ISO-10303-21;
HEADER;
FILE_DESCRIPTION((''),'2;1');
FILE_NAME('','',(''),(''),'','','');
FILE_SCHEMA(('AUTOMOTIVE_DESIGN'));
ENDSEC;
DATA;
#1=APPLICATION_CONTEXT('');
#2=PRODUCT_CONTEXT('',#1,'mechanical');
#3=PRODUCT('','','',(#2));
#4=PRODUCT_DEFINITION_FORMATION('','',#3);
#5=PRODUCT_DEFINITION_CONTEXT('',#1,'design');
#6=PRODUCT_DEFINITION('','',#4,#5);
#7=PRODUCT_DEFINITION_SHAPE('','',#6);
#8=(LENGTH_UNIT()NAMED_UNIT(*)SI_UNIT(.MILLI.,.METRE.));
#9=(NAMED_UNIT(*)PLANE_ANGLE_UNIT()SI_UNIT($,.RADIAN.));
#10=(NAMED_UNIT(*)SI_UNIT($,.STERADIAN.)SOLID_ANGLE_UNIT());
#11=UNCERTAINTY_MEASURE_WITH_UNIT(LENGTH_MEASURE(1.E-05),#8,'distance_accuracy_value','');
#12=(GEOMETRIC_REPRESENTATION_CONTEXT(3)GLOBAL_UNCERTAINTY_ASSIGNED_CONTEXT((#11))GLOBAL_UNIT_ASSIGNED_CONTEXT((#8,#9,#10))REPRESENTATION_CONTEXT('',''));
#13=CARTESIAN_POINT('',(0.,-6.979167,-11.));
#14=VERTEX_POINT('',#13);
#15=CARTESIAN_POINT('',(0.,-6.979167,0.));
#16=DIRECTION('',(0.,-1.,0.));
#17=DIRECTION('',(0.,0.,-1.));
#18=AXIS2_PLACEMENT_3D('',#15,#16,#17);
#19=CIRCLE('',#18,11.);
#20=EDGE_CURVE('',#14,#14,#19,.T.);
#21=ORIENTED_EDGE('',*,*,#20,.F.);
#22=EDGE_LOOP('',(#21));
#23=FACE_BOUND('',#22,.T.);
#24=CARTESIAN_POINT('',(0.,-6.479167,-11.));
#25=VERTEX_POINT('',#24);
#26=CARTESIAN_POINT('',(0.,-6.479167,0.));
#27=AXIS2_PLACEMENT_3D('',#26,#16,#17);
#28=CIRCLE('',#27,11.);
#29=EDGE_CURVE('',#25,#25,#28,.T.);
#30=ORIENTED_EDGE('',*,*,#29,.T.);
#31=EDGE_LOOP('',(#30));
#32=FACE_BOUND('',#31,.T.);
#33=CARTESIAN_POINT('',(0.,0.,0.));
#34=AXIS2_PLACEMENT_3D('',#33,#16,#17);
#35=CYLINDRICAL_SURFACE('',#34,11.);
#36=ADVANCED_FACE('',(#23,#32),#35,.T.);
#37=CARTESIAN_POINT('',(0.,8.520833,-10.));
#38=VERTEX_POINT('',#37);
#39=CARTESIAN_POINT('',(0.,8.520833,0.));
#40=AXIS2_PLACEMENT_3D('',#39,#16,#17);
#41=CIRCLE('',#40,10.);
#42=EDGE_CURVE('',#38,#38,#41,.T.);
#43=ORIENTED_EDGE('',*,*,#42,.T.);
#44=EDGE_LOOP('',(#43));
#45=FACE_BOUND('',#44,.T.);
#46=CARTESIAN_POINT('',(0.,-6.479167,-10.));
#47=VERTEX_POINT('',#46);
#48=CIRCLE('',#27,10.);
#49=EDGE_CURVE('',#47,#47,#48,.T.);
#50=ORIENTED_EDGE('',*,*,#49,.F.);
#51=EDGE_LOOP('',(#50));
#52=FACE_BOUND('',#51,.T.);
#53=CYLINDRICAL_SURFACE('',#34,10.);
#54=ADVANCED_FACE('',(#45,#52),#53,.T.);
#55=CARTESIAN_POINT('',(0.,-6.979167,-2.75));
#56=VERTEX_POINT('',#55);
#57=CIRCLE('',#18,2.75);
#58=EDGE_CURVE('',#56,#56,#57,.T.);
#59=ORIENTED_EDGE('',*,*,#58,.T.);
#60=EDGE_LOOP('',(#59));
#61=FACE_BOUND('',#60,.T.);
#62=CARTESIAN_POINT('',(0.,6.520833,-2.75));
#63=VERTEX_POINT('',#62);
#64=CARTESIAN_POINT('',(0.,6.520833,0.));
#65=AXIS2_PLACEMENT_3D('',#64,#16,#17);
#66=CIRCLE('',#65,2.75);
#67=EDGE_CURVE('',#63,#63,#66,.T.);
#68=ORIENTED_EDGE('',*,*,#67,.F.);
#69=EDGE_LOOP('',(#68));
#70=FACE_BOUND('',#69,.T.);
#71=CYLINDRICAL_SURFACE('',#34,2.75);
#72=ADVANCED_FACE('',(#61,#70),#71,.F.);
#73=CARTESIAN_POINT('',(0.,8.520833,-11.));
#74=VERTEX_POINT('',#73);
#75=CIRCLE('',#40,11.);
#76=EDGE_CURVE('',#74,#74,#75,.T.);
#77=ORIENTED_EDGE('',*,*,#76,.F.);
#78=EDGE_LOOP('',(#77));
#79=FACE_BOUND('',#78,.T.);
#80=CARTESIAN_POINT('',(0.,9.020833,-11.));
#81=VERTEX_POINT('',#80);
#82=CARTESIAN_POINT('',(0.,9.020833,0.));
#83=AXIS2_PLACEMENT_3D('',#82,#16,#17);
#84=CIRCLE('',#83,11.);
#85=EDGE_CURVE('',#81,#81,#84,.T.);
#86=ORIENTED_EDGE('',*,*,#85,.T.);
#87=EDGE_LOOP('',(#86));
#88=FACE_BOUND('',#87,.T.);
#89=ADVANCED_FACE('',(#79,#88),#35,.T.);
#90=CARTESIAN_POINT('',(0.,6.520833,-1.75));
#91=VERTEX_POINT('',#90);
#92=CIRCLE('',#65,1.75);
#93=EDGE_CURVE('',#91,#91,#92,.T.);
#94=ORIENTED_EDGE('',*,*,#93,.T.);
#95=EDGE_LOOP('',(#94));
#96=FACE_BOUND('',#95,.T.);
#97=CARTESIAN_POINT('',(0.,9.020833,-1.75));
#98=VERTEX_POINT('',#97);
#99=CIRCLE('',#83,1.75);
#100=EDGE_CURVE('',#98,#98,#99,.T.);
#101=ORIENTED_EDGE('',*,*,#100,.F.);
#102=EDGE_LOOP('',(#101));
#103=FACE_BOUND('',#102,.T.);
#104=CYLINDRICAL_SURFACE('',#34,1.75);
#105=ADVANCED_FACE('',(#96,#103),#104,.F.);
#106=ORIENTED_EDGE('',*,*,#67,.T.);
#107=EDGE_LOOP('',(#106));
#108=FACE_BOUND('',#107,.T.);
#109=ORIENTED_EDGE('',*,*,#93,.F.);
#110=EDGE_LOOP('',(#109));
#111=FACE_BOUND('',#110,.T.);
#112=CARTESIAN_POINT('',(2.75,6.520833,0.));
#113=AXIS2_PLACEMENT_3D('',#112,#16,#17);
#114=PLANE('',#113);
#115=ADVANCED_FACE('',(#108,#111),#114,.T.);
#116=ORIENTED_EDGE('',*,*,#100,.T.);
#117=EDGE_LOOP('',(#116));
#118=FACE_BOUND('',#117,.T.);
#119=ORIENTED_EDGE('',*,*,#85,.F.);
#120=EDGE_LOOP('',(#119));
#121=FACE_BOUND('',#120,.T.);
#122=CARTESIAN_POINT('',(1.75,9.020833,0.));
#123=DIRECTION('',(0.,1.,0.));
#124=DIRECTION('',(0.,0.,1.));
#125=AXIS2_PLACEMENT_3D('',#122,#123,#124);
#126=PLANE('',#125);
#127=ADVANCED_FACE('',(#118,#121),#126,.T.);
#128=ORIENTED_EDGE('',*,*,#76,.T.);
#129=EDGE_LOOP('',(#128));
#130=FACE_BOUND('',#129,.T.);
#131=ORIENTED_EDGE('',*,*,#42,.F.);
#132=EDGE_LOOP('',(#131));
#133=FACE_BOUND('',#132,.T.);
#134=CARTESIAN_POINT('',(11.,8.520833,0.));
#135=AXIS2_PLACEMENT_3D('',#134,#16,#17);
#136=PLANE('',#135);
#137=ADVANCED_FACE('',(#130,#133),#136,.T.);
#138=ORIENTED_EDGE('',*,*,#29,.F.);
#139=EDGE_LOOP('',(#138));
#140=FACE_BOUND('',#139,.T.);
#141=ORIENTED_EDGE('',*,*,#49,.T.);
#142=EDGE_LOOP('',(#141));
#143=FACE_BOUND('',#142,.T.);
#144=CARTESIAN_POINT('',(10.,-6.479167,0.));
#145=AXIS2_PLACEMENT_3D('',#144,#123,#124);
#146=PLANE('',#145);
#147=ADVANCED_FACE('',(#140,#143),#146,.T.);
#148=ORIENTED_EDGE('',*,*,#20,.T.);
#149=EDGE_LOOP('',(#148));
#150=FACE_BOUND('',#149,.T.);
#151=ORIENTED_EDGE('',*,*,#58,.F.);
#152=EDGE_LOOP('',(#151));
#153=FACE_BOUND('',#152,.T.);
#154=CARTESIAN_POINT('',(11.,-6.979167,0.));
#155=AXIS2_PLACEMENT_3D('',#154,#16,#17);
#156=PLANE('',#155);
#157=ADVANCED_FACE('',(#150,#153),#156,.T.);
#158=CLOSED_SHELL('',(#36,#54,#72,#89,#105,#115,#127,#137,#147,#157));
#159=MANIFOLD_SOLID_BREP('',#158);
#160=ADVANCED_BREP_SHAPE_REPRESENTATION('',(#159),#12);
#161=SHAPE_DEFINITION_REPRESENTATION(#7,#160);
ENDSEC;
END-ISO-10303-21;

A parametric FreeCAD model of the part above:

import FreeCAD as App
import Part
import Sketcher
from FreeCAD import Vector
Q = App.Units.Quantity

doc = App.newDocument("Part")
params = doc.addObject("Spreadsheet::Sheet", "Params")
for row, (alias, value) in enumerate([
    ("sketch1_width", "1 mm"),
    ("sketch1_height", "15 mm"),
    ("sketch1_height2", "2.5 mm"),
    ("sketch1_height3", "13.5 mm"),
    ("sketch1_width2", "9.25 mm"),
    ("revolution_angle", "360 deg"),
], start=1):
    params.set(f"A{row}", alias)
    params.set(f"B{row}", "=" + value)
    params.setAlias(f"B{row}", alias)

body = doc.addObject("PartDesign::Body", "Body")

# Sketch on XY plane
sketch1 = doc.addObject("Sketcher::SketchObject", "Sketch")
body.addObject(sketch1)
sketch1.AttachmentSupport = (doc.XY_Plane, [""])
sketch1.MapMode = "FlatFace"
sketch1.addGeometry([
    Part.LineSegment(Vector(11, 9.020833, 0), Vector(1.75, 9.020833, 0)),  # 0
    Part.LineSegment(Vector(1.75, 9.020833, 0), Vector(1.75, 6.520833, 0)),  # 1
    Part.LineSegment(Vector(1.75, 6.520833, 0), Vector(2.75, 6.520833, 0)),  # 2
    Part.LineSegment(Vector(2.75, 6.520833, 0), Vector(2.75, -6.979167, 0)),  # 3
    Part.LineSegment(Vector(2.75, -6.979167, 0), Vector(11, -6.979167, 0)),  # 4
    Part.LineSegment(Vector(11, -6.979167, 0), Vector(11, -6.479167, 0)),  # 5
    Part.LineSegment(Vector(11, -6.479167, 0), Vector(10, -6.479167, 0)),  # 6
    Part.LineSegment(Vector(10, -6.479167, 0), Vector(10, 8.520833, 0)),  # 7
    Part.LineSegment(Vector(10, 8.520833, 0), Vector(11, 8.520833, 0)),  # 8
    Part.LineSegment(Vector(11, 8.520833, 0), Vector(11, 9.020833, 0)),  # 9
], False)
sketch1.addConstraint([
    Sketcher.Constraint("Coincident", 0, 2, 1, 1),
    Sketcher.Constraint("Coincident", 1, 2, 2, 1),
    Sketcher.Constraint("Coincident", 2, 2, 3, 1),
    Sketcher.Constraint("Coincident", 3, 2, 4, 1),
    Sketcher.Constraint("Coincident", 4, 2, 5, 1),
    Sketcher.Constraint("Coincident", 5, 2, 6, 1),
    Sketcher.Constraint("Coincident", 6, 2, 7, 1),
    Sketcher.Constraint("Coincident", 7, 2, 8, 1),
    Sketcher.Constraint("Coincident", 8, 2, 9, 1),
    Sketcher.Constraint("Coincident", 9, 2, 0, 1),
    Sketcher.Constraint("Horizontal", 0),
    Sketcher.Constraint("Vertical", 1),
    Sketcher.Constraint("Horizontal", 2),
    Sketcher.Constraint("Vertical", 3),
    Sketcher.Constraint("Horizontal", 4),
    Sketcher.Constraint("Vertical", 5),
    Sketcher.Constraint("Horizontal", 6),
    Sketcher.Constraint("Vertical", 7),
    Sketcher.Constraint("Horizontal", 8),
    Sketcher.Constraint("Vertical", 9),
    Sketcher.Constraint("Vertical", 5, 2, 8, 2),
    Sketcher.Constraint("Equal", 2, 6),
    Sketcher.Constraint("Equal", 5, 9),
    Sketcher.Constraint("DistanceX", 2, 1, 2, 2, Q("1 mm")),
    Sketcher.Constraint("DistanceY", 7, 1, 7, 2, Q("15 mm")),
    Sketcher.Constraint("DistanceY", 1, 2, 1, 1, Q("2.5 mm")),
    Sketcher.Constraint("DistanceY", 3, 2, 3, 1, Q("13.5 mm")),
    Sketcher.Constraint("DistanceX", -1, 1, 4, 2, Q("11 mm")),
    Sketcher.Constraint("DistanceX", 0, 2, 0, 1, Q("9.25 mm")),
    Sketcher.Constraint("DistanceY", -1, 1, 0, 2, Q("9.020833 mm")),
])
sketch1.setExpression("Constraints[23]", "Params.sketch1_width")
sketch1.setExpression("Constraints[24]", "Params.sketch1_height")
sketch1.setExpression("Constraints[25]", "Params.sketch1_height2")
sketch1.setExpression("Constraints[26]", "Params.sketch1_height3")
sketch1.setExpression("Constraints[28]", "Params.sketch1_width2")
revolution = doc.addObject("PartDesign::Revolution", "Revolution")
body.addObject(revolution)
revolution.Profile = sketch1
revolution.ReferenceAxis = (sketch1, ["V_Axis"])
revolution.setExpression("Angle", "Params.revolution_angle")

doc.recompute()
